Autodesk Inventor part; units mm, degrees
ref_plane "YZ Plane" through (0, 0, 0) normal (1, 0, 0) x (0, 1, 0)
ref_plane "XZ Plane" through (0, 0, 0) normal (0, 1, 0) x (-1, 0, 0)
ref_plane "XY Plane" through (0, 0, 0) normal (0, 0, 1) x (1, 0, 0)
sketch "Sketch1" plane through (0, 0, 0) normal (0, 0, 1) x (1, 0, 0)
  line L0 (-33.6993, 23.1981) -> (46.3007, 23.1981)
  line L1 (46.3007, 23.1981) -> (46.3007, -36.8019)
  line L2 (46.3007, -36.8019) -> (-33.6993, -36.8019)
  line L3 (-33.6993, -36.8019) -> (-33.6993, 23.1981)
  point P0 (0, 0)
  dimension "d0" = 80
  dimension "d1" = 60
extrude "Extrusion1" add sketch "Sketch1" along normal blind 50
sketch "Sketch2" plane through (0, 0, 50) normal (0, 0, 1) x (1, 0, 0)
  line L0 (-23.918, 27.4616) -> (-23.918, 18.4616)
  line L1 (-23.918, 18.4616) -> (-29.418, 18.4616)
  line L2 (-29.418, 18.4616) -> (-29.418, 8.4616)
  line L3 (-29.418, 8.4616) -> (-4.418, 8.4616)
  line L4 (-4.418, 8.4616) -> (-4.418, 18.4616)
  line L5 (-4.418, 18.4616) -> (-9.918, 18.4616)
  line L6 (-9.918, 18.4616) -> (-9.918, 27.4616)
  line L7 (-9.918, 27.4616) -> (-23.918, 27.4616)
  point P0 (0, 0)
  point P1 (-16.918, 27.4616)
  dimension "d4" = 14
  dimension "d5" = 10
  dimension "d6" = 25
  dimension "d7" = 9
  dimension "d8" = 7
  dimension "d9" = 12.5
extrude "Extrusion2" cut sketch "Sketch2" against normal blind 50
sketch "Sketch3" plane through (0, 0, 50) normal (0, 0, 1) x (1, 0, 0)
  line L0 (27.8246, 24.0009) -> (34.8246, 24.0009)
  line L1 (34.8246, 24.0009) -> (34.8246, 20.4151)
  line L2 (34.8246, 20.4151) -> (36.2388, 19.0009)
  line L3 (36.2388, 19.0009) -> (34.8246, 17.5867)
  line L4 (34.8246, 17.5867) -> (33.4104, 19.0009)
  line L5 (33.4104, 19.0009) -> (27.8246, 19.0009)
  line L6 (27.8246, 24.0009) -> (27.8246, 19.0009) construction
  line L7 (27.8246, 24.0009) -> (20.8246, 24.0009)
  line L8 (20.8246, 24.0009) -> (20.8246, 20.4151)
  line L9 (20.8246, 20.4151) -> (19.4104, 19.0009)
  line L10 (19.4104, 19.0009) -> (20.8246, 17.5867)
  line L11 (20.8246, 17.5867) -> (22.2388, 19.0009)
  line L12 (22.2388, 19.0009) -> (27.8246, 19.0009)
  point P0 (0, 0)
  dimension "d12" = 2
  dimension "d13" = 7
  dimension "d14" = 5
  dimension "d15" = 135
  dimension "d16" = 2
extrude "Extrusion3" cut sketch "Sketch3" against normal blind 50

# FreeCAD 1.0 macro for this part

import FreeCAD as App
import Part
import Sketcher

V = App.Vector
Q = App.Units.Quantity

doc = App.newDocument("Part")
body = doc.addObject("PartDesign::Body", "Body")

# Sketch on XY plane
sketch1 = body.newObject("Sketcher::SketchObject", "Sketch")
sketch1.AttachmentSupport = (doc.getObject("XY_Plane"), [""])
sketch1.MapMode = "FlatFace"
sketch1.addGeometry([
    Part.LineSegment(V(46.3007, 23.1981, 0), V(-33.6993, 23.1981, 0)),
    Part.LineSegment(V(-33.6993, 23.1981, 0), V(-33.6993, -36.8019, 0)),
    Part.LineSegment(V(-33.6993, -36.8019, 0), V(46.3007, -36.8019, 0)),
    Part.LineSegment(V(46.3007, -36.8019, 0), V(46.3007, 23.1981, 0)),
], False)
sketch1.addConstraint([
    Sketcher.Constraint("Coincident", 0, 2, 1, 1),
    Sketcher.Constraint("Coincident", 1, 2, 2, 1),
    Sketcher.Constraint("Coincident", 2, 2, 3, 1),
    Sketcher.Constraint("Coincident", 3, 2, 0, 1),
    Sketcher.Constraint("Horizontal", 0),
    Sketcher.Constraint("Vertical", 1),
    Sketcher.Constraint("Horizontal", 2),
    Sketcher.Constraint("Vertical", 3),
    Sketcher.Constraint("DistanceX", 0, 2, 0, 1, Q("80 mm")),
    Sketcher.Constraint("DistanceY", 1, 2, 1, 1, Q("60 mm")),
    Sketcher.Constraint("DistanceY", -1, 1, 0, 2, Q("23.198 mm")),
    Sketcher.Constraint("DistanceX", 0, 2, -1, 1, Q("33.6993 mm")),
])
pad1 = body.newObject("PartDesign::Pad", "Pad")
pad1.Profile = sketch1
pad1.Length = 50

# Sketch on XY plane
sketch2 = body.newObject("Sketcher::SketchObject", "Sketch001")
sketch2.AttachmentSupport = (doc.getObject("XY_Plane"), [""])
sketch2.MapMode = "FlatFace"
sketch2.AttachmentOffset = App.Placement(V(0, 0, 50), App.Rotation())
sketch2.addGeometry([
    Part.LineSegment(V(-9.918, 27.4616, 0), V(-23.918, 27.4616, 0)),  # 0
    Part.LineSegment(V(-23.918, 27.4616, 0), V(-23.918, 18.4616, 0)),  # 1
    Part.LineSegment(V(-23.918, 18.4616, 0), V(-29.418, 18.4616, 0)),  # 2
    Part.LineSegment(V(-29.418, 18.4616, 0), V(-29.418, 8.4616, 0)),  # 3
    Part.LineSegment(V(-29.418, 8.4616, 0), V(-4.418, 8.4616, 0)),  # 4
    Part.LineSegment(V(-4.418, 8.4616, 0), V(-4.418, 18.4616, 0)),  # 5
    Part.LineSegment(V(-4.418, 18.4616, 0), V(-9.918, 18.4616, 0)),  # 6
    Part.LineSegment(V(-9.918, 18.4616, 0), V(-9.918, 27.4616, 0)),  # 7
], False)
sketch2.addConstraint([
    Sketcher.Constraint("Coincident", 0, 2, 1, 1),
    Sketcher.Constraint("Coincident", 1, 2, 2, 1),
    Sketcher.Constraint("Coincident", 2, 2, 3, 1),
    Sketcher.Constraint("Coincident", 3, 2, 4, 1),
    Sketcher.Constraint("Coincident", 4, 2, 5, 1),
    Sketcher.Constraint("Coincident", 5, 2, 6, 1),
    Sketcher.Constraint("Coincident", 6, 2, 7, 1),
    Sketcher.Constraint("Coincident", 7, 2, 0, 1),
    Sketcher.Constraint("Horizontal", 0),
    Sketcher.Constraint("Vertical", 1),
    Sketcher.Constraint("Horizontal", 2),
    Sketcher.Constraint("Vertical", 3),
    Sketcher.Constraint("Horizontal", 4),
    Sketcher.Constraint("Vertical", 5),
    Sketcher.Constraint("Horizontal", 6),
    Sketcher.Constraint("Vertical", 7),
    Sketcher.Constraint("Horizontal", 2, 2, 5, 2),
    Sketcher.Constraint("Equal", 2, 6),
    Sketcher.Constraint("DistanceX", 0, 2, 0, 1, Q("14 mm")),
    Sketcher.Constraint("DistanceX", 4, 1, 4, 2, Q("25 mm")),
    Sketcher.Constraint("DistanceY", 1, 2, 1, 1, Q("9 mm")),
    Sketcher.Constraint("DistanceY", 3, 2, 3, 1, Q("10 mm")),
    Sketcher.Constraint("DistanceX", 0, 2, -1, 1, Q("23.918 mm")),
    Sketcher.Constraint("DistanceY", -1, 1, 0, 2, Q("27.4616 mm")),
])
pocket1 = body.newObject("PartDesign::Pocket", "Pocket")
pocket1.Profile = sketch2
pocket1.Length = 50

# Sketch on XY plane
sketch3 = body.newObject("Sketcher::SketchObject", "Sketch002")
sketch3.AttachmentSupport = (doc.getObject("XY_Plane"), [""])
sketch3.MapMode = "FlatFace"
sketch3.AttachmentOffset = App.Placement(V(0, 0, 50), App.Rotation())
sketch3.addGeometry([
    Part.LineSegment(V(34.8246, 24.0009, 0), V(20.8246, 24.0009, 0)),  # 0
    Part.LineSegment(V(20.8246, 24.0009, 0), V(20.8246, 20.4151, 0)),  # 1
    Part.LineSegment(V(20.8246, 20.4151, 0), V(19.4104, 19.0009, 0)),  # 2
    Part.LineSegment(V(19.4104, 19.0009, 0), V(20.8246, 17.5867, 0)),  # 3
    Part.LineSegment(V(20.8246, 17.5867, 0), V(22.2388, 19.0009, 0)),  # 4
    Part.LineSegment(V(22.2388, 19.0009, 0), V(33.4104, 19.0009, 0)),  # 5
    Part.LineSegment(V(33.4104, 19.0009, 0), V(34.8246, 17.5867, 0)),  # 6
    Part.LineSegment(V(34.8246, 17.5867, 0), V(36.2388, 19.0009, 0)),  # 7
    Part.LineSegment(V(36.2388, 19.0009, 0), V(34.8246, 20.4151, 0)),  # 8
    Part.LineSegment(V(34.8246, 20.4151, 0), V(34.8246, 24.0009, 0)),  # 9
], False)
sketch3.addConstraint([
    Sketcher.Constraint("Coincident", 0, 2, 1, 1),
    Sketcher.Constraint("Coincident", 1, 2, 2, 1),
    Sketcher.Constraint("Coincident", 2, 2, 3, 1),
    Sketcher.Constraint("Coincident", 3, 2, 4, 1),
    Sketcher.Constraint("Coincident", 4, 2, 5, 1),
    Sketcher.Constraint("Coincident", 5, 2, 6, 1),
    Sketcher.Constraint("Coincident", 6, 2, 7, 1),
    Sketcher.Constraint("Coincident", 7, 2, 8, 1),
    Sketcher.Constraint("Coincident", 8, 2, 9, 1),
    Sketcher.Constraint("Coincident", 9, 2, 0, 1),
    Sketcher.Constraint("Horizontal", 0),
    Sketcher.Constraint("Vertical", 1),
    Sketcher.Constraint("Horizontal", 5),
    Sketcher.Constraint("Vertical", 9),
    Sketcher.Constraint("Perpendicular", 2, 3),
    Sketcher.Constraint("Perpendicular", 3, 4),
    Sketcher.Constraint("Perpendicular", 4, 6),
    Sketcher.Constraint("Perpendicular", 6, 7),
    Sketcher.Constraint("Perpendicular", 7, 8),
    Sketcher.Constraint("Horizontal", 2, 2, 4, 2),
    Sketcher.Constraint("Horizontal", 3, 2, 6, 2),
    Sketcher.Constraint("Horizontal", 5, 2, 7, 2),
    Sketcher.Constraint("Horizontal", 1, 2, 8, 2),
    Sketcher.Constraint("Vertical", 1, 2, 3, 2),
    Sketcher.Constraint("Vertical", 6, 2, 8, 2),
    Sketcher.Constraint("Distance", 2, Q("2 mm")),
    Sketcher.Constraint("DistanceY", 2, 2, 0, 2, Q("5 mm")),
    Sketcher.Constraint("DistanceX", 0, 2, 0, 1, Q("14 mm")),
    Sketcher.Constraint("DistanceY", -1, 1, 0, 2, Q("24.001 mm")),
    Sketcher.Constraint("DistanceX", -1, 1, 0, 2, Q("20.8246 mm")),
])
pocket2 = body.newObject("PartDesign::Pocket", "Pocket001")
pocket2.Profile = sketch3
pocket2.Length = 50

doc.recompute()
